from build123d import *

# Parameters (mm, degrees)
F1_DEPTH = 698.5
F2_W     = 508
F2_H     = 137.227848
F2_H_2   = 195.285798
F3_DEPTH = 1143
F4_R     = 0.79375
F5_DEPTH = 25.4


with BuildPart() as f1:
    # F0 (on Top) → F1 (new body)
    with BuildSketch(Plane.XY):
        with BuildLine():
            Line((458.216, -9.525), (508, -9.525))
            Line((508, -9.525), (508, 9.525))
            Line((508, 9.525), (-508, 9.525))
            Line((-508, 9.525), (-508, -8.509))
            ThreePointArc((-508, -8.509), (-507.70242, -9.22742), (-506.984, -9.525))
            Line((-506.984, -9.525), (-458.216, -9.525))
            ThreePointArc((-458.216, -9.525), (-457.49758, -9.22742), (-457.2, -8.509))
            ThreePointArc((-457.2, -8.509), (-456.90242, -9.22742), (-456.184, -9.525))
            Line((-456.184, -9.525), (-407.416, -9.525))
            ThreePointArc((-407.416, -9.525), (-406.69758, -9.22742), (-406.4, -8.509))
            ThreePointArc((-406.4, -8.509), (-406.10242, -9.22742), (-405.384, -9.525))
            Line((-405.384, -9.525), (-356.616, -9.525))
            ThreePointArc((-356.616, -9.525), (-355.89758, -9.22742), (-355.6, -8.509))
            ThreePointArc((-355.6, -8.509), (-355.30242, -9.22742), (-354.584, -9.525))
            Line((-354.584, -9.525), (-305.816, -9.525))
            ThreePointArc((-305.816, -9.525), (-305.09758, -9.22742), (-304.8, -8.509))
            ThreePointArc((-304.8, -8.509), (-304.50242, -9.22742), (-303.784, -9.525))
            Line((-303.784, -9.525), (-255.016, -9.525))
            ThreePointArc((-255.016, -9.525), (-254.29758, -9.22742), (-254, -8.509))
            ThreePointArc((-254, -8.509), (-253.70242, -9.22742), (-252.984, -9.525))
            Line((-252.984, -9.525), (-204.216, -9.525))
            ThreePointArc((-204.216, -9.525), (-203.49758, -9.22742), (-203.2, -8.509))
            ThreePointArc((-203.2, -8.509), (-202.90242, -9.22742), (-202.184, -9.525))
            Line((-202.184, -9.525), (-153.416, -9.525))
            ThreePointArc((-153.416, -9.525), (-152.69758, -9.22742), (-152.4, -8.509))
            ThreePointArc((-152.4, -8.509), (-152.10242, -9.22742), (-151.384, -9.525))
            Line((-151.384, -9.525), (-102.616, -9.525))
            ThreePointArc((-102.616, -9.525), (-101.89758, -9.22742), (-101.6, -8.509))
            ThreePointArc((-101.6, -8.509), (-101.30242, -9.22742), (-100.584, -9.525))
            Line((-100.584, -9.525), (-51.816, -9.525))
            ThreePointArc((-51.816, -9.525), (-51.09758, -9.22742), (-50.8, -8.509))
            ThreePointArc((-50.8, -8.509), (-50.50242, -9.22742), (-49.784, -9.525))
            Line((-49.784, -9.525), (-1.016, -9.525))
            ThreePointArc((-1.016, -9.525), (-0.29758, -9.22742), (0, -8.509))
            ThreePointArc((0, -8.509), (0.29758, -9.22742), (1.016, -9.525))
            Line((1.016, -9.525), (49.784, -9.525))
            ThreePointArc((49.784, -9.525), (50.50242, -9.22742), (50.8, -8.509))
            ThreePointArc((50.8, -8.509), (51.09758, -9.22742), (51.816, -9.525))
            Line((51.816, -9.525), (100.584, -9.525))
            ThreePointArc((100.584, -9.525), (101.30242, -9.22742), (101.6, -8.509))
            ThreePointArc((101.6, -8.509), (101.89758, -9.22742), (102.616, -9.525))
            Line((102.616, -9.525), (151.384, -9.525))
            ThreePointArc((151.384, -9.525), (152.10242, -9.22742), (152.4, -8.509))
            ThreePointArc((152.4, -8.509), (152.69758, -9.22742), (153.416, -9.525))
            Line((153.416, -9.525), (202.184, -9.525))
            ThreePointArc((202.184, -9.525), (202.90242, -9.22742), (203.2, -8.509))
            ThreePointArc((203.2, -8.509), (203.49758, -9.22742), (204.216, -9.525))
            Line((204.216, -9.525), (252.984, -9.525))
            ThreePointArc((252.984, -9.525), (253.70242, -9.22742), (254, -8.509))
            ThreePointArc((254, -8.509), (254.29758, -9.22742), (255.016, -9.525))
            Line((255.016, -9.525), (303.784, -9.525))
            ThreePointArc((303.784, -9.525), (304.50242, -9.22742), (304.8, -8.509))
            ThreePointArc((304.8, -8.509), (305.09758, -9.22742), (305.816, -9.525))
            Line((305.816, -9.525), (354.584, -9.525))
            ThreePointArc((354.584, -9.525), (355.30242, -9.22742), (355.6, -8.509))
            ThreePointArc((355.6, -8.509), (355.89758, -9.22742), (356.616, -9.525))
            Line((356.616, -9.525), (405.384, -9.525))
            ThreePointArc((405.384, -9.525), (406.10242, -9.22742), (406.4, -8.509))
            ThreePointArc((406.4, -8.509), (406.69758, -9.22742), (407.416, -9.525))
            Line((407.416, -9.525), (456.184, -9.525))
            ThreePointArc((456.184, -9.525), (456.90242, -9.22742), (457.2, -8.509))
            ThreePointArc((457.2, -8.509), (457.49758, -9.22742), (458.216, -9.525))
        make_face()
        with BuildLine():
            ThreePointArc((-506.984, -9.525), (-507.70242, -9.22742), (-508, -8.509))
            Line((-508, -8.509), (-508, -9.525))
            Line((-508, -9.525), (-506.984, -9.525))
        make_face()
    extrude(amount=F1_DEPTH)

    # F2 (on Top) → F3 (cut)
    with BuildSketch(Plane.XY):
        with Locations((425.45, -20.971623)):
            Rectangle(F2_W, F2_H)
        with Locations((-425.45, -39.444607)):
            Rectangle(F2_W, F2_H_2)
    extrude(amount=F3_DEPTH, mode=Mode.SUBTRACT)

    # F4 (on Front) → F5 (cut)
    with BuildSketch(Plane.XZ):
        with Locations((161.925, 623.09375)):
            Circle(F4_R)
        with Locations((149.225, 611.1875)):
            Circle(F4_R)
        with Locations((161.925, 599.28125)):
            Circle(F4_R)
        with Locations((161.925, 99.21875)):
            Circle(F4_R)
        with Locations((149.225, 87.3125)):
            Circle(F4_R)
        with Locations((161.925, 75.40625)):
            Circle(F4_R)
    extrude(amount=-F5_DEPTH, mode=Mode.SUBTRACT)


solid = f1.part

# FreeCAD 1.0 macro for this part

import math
import FreeCAD as App
import Part
import Sketcher
from FreeCAD import Vector
Q = App.Units.Quantity

doc = App.newDocument("Part")
params = doc.addObject("Spreadsheet::Sheet", "Params")
for row, (alias, value) in enumerate([
    ("sketch1_width", "40 in"),
    ("sketch1_radius", "0.0400001 in"),
    ("sketch1_height", "0.75 in"),
    ("pad1_length", "27.5 in"),
    ("sketch2_width", "20 in"),
    ("pocket1_length", "45 in"),
    ("sketch3_diameter", "0.0625 in"),
    ("pocket2_length", "1 in"),
], start=1):
    params.set(f"A{row}", alias)
    params.set(f"B{row}", "=" + value)
    params.setAlias(f"B{row}", alias)

body = doc.addObject("PartDesign::Body", "Body")

# Sketch on XY plane
sketch1 = body.newObject("Sketcher::SketchObject", "Sketch")
sketch1.AttachmentSupport = (doc.getObject("XY_Plane"), [""])
sketch1.MapMode = "FlatFace"
sketch1.addGeometry(Part.LineSegment(Vector(458.2, -9.5, 0), Vector(508, -9.5, 0)), False)
sketch1.addGeometry(Part.LineSegment(Vector(508, -9.5, 0), Vector(508, 9.5, 0)), False)
sketch1.addGeometry(Part.LineSegment(Vector(508, 9.5, 0), Vector(-508, 9.5, 0)), False)
sketch1.addGeometry(Part.LineSegment(Vector(-508, 9.5, 0), Vector(-508, -9.5, 0)), False)
sketch1.addGeometry(Part.LineSegment(Vector(-508, -9.5, 0), Vector(-458.2, -9.5, 0)), False)
sketch1.addGeometry(Part.ArcOfCircle(Part.Circle(Vector(-458.2, -8.5, 0), Vector(0, 0, 1), 1), math.radians(-90), math.radians(0)), False)
sketch1.addGeometry(Part.ArcOfCircle(Part.Circle(Vector(-456.2, -8.5, 0), Vector(0, 0, 1), 1), math.radians(-180), math.radians(-90)), False)
sketch1.addGeometry(Part.LineSegment(Vector(-456.2, -9.5, 0), Vector(-407.4, -9.5, 0)), False)
sketch1.addGeometry(Part.ArcOfCircle(Part.Circle(Vector(-407.4, -8.5, 0), Vector(0, 0, 1), 1), math.radians(-90), math.radians(0)), False)
sketch1.addGeometry(Part.ArcOfCircle(Part.Circle(Vector(-405.4, -8.5, 0), Vector(0, 0, 1), 1), math.radians(-180), math.radians(-90)), False)
sketch1.addGeometry(Part.LineSegment(Vector(-405.4, -9.5, 0), Vector(-356.6, -9.5, 0)), False)
sketch1.addGeometry(Part.ArcOfCircle(Part.Circle(Vector(-356.6, -8.5, 0), Vector(0, 0, 1), 1), math.radians(-90), math.radians(0)), False)
sketch1.addGeometry(Part.ArcOfCircle(Part.Circle(Vector(-354.6, -8.5, 0), Vector(0, 0, 1), 1), math.radians(-180), math.radians(-90)), False)
sketch1.addGeometry(Part.LineSegment(Vector(-354.6, -9.5, 0), Vector(-305.8, -9.5, 0)), False)
sketch1.addGeometry(Part.ArcOfCircle(Part.Circle(Vector(-305.8, -8.5, 0), Vector(0, 0, 1), 1), math.radians(-90), math.radians(0)), False)
sketch1.addGeometry(Part.ArcOfCircle(Part.Circle(Vector(-303.8, -8.5, 0), Vector(0, 0, 1), 1), math.radians(-180), math.radians(-90)), False)
sketch1.addGeometry(Part.LineSegment(Vector(-303.8, -9.5, 0), Vector(-255, -9.5, 0)), False)
sketch1.addGeometry(Part.ArcOfCircle(Part.Circle(Vector(-255, -8.5, 0), Vector(0, 0, 1), 1), math.radians(-90), math.radians(0)), False)
sketch1.addGeometry(Part.ArcOfCircle(Part.Circle(Vector(-253, -8.5, 0), Vector(0, 0, 1), 1), math.radians(-180), math.radians(-90)), False)
sketch1.addGeometry(Part.LineSegment(Vector(-253, -9.5, 0), Vector(-204.2, -9.5, 0)), False)
sketch1.addGeometry(Part.ArcOfCircle(Part.Circle(Vector(-204.2, -8.5, 0), Vector(0, 0, 1), 1), math.radians(-90), math.radians(0)), False)
sketch1.addGeometry(Part.ArcOfCircle(Part.Circle(Vector(-202.2, -8.5, 0), Vector(0, 0, 1), 1), math.radians(-180), math.radians(-90)), False)
sketch1.addGeometry(Part.LineSegment(Vector(-202.2, -9.5, 0), Vector(-153.4, -9.5, 0)), False)
sketch1.addGeometry(Part.ArcOfCircle(Part.Circle(Vector(-153.4, -8.5, 0), Vector(0, 0, 1), 1), math.radians(-90), math.radians(0)), False)
sketch1.addGeometry(Part.ArcOfCircle(Part.Circle(Vector(-151.4, -8.5, 0), Vector(0, 0, 1), 1), math.radians(-180), math.radians(-90)), False)
sketch1.addGeometry(Part.LineSegment(Vector(-151.4, -9.5, 0), Vector(-102.6, -9.5, 0)), False)
sketch1.addGeometry(Part.ArcOfCircle(Part.Circle(Vector(-102.6, -8.5, 0), Vector(0, 0, 1), 1), math.radians(-90), math.radians(0)), False)
sketch1.addGeometry(Part.ArcOfCircle(Part.Circle(Vector(-100.6, -8.5, 0), Vector(0, 0, 1), 1), math.radians(-180), math.radians(-90)), False)
sketch1.addGeometry(Part.LineSegment(Vector(-100.6, -9.5, 0), Vector(-51.8, -9.5, 0)), False)
sketch1.addGeometry(Part.ArcOfCircle(Part.Circle(Vector(-51.8, -8.5, 0), Vector(0, 0, 1), 1), math.radians(-90), math.radians(0)), False)
sketch1.addGeometry(Part.ArcOfCircle(Part.Circle(Vector(-49.8, -8.5, 0), Vector(0, 0, 1), 1), math.radians(-180), math.radians(-90)), False)
sketch1.addGeometry(Part.LineSegment(Vector(-49.8, -9.5, 0), Vector(-1, -9.5, 0)), False)
sketch1.addGeometry(Part.ArcOfCircle(Part.Circle(Vector(-1, -8.5, 0), Vector(0, 0, 1), 1), math.radians(-90), math.radians(0)), False)
sketch1.addGeometry(Part.ArcOfCircle(Part.Circle(Vector(1, -8.5, 0), Vector(0, 0, 1), 1), math.radians(-180), math.radians(-90)), False)
sketch1.addGeometry(Part.LineSegment(Vector(1, -9.5, 0), Vector(49.8, -9.5, 0)), False)
sketch1.addGeometry(Part.ArcOfCircle(Part.Circle(Vector(49.8, -8.5, 0), Vector(0, 0, 1), 1), math.radians(-90), math.radians(0)), False)
sketch1.addGeometry(Part.ArcOfCircle(Part.Circle(Vector(51.8, -8.5, 0), Vector(0, 0, 1), 1), math.radians(-180), math.radians(-90)), False)
sketch1.addGeometry(Part.LineSegment(Vector(51.8, -9.5, 0), Vector(100.6, -9.5, 0)), False)
sketch1.addGeometry(Part.ArcOfCircle(Part.Circle(Vector(100.6, -8.5, 0), Vector(0, 0, 1), 1), math.radians(-90), math.radians(0)), False)
sketch1.addGeometry(Part.ArcOfCircle(Part.Circle(Vector(102.6, -8.5, 0), Vector(0, 0, 1), 1), math.radians(-180), math.radians(-90)), False)
sketch1.addGeometry(Part.LineSegment(Vector(102.6, -9.5, 0), Vector(151.4, -9.5, 0)), False)
sketch1.addGeometry(Part.ArcOfCircle(Part.Circle(Vector(151.4, -8.5, 0), Vector(0, 0, 1), 1), math.radians(-90), math.radians(0)), False)
sketch1.addGeometry(Part.ArcOfCircle(Part.Circle(Vector(153.4, -8.5, 0), Vector(0, 0, 1), 1), math.radians(-180), math.radians(-90)), False)
sketch1.addGeometry(Part.LineSegment(Vector(153.4, -9.5, 0), Vector(202.2, -9.5, 0)), False)
sketch1.addGeometry(Part.ArcOfCircle(Part.Circle(Vector(202.2, -8.5, 0), Vector(0, 0, 1), 1), math.radians(-90), math.radians(0)), False)
sketch1.addGeometry(Part.ArcOfCircle(Part.Circle(Vector(204.2, -8.5, 0), Vector(0, 0, 1), 1), math.radians(-180), math.radians(-90)), False)
sketch1.addGeometry(Part.LineSegment(Vector(204.2, -9.5, 0), Vector(253, -9.5, 0)), False)
sketch1.addGeometry(Part.ArcOfCircle(Part.Circle(Vector(253, -8.5, 0), Vector(0, 0, 1), 1), math.radians(-90), math.radians(0)), False)
sketch1.addGeometry(Part.ArcOfCircle(Part.Circle(Vector(255, -8.5, 0), Vector(0, 0, 1), 1), math.radians(-180), math.radians(-90)), False)
sketch1.addGeometry(Part.LineSegment(Vector(255, -9.5, 0), Vector(303.8, -9.5, 0)), False)
sketch1.addGeometry(Part.ArcOfCircle(Part.Circle(Vector(303.8, -8.5, 0), Vector(0, 0, 1), 1), math.radians(-90), math.radians(0)), False)
sketch1.addGeometry(Part.ArcOfCircle(Part.Circle(Vector(305.8, -8.5, 0), Vector(0, 0, 1), 1), math.radians(-180), math.radians(-90)), False)
sketch1.addGeometry(Part.LineSegment(Vector(305.8, -9.5, 0), Vector(354.6, -9.5, 0)), False)
sketch1.addGeometry(Part.ArcOfCircle(Part.Circle(Vector(354.6, -8.5, 0), Vector(0, 0, 1), 1), math.radians(-90), math.radians(0)), False)
sketch1.addGeometry(Part.ArcOfCircle(Part.Circle(Vector(356.6, -8.5, 0), Vector(0, 0, 1), 1), math.radians(-180), math.radians(-90)), False)
sketch1.addGeometry(Part.LineSegment(Vector(356.6, -9.5, 0), Vector(405.4, -9.5, 0)), False)
sketch1.addGeometry(Part.ArcOfCircle(Part.Circle(Vector(405.4, -8.5, 0), Vector(0, 0, 1), 1), math.radians(-90), math.radians(0)), False)
sketch1.addGeometry(Part.ArcOfCircle(Part.Circle(Vector(407.4, -8.5, 0), Vector(0, 0, 1), 1), math.radians(-180), math.radians(-90)), False)
sketch1.addGeometry(Part.LineSegment(Vector(407.4, -9.5, 0), Vector(456.2, -9.5, 0)), False)
sketch1.addGeometry(Part.ArcOfCircle(Part.Circle(Vector(456.2, -8.5, 0), Vector(0, 0, 1), 1), math.radians(-90), math.radians(0)), False)
sketch1.addGeometry(Part.ArcOfCircle(Part.Circle(Vector(458.2, -8.5, 0), Vector(0, 0, 1), 1), math.radians(-180), math.radians(-90)), False)
sketch1.addConstraint(Sketcher.Constraint("Coincident", 0, 2, 1, 1))
sketch1.addConstraint(Sketcher.Constraint("Coincident", 1, 2, 2, 1))
sketch1.addConstraint(Sketcher.Constraint("Coincident", 2, 2, 3, 1))
sketch1.addConstraint(Sketcher.Constraint("Coincident", 3, 2, 4, 1))
sketch1.addConstraint(Sketcher.Constraint("Tangent", 4, 2, 5, 1))
sketch1.addConstraint(Sketcher.Constraint("Coincident", 5, 2, 6, 1))
sketch1.addConstraint(Sketcher.Constraint("Tangent", 6, 2, 7, 1))
sketch1.addConstraint(Sketcher.Constraint("Tangent", 7, 2, 8, 1))
sketch1.addConstraint(Sketcher.Constraint("Coincident", 8, 2, 9, 1))
sketch1.addConstraint(Sketcher.Constraint("Tangent", 9, 2, 10, 1))
sketch1.addConstraint(Sketcher.Constraint("Tangent", 10, 2, 11, 1))
sketch1.addConstraint(Sketcher.Constraint("Coincident", 11, 2, 12, 1))
sketch1.addConstraint(Sketcher.Constraint("Tangent", 12, 2, 13, 1))
sketch1.addConstraint(Sketcher.Constraint("Tangent", 13, 2, 14, 1))
sketch1.addConstraint(Sketcher.Constraint("Coincident", 14, 2, 15, 1))
sketch1.addConstraint(Sketcher.Constraint("Tangent", 15, 2, 16, 1))
sketch1.addConstraint(Sketcher.Constraint("Tangent", 16, 2, 17, 1))
sketch1.addConstraint(Sketcher.Constraint("Coincident", 17, 2, 18, 1))
sketch1.addConstraint(Sketcher.Constraint("Tangent", 18, 2, 19, 1))
sketch1.addConstraint(Sketcher.Constraint("Tangent", 19, 2, 20, 1))
sketch1.addConstraint(Sketcher.Constraint("Coincident", 20, 2, 21, 1))
sketch1.addConstraint(Sketcher.Constraint("Tangent", 21, 2, 22, 1))
sketch1.addConstraint(Sketcher.Constraint("Tangent", 22, 2, 23, 1))
sketch1.addConstraint(Sketcher.Constraint("Coincident", 23, 2, 24, 1))
sketch1.addConstraint(Sketcher.Constraint("Tangent", 24, 2, 25, 1))
sketch1.addConstraint(Sketcher.Constraint("Tangent", 25, 2, 26, 1))
sketch1.addConstraint(Sketcher.Constraint("Coincident", 26, 2, 27, 1))
sketch1.addConstraint(Sketcher.Constraint("Tangent", 27, 2, 28, 1))
sketch1.addConstraint(Sketcher.Constraint("Tangent", 28, 2, 29, 1))
sketch1.addConstraint(Sketcher.Constraint("Coincident", 29, 2, 30, 1))
sketch1.addConstraint(Sketcher.Constraint("Tangent", 30, 2, 31, 1))
sketch1.addConstraint(Sketcher.Constraint("Tangent", 31, 2, 32, 1))
sketch1.addConstraint(Sketcher.Constraint("Coincident", 32, 2, 33, 1))
sketch1.addConstraint(Sketcher.Constraint("Tangent", 33, 2, 34, 1))
sketch1.addConstraint(Sketcher.Constraint("Tangent", 34, 2, 35, 1))
sketch1.addConstraint(Sketcher.Constraint("Coincident", 35, 2, 36, 1))
sketch1.addConstraint(Sketcher.Constraint("Tangent", 36, 2, 37, 1))
sketch1.addConstraint(Sketcher.Constraint("Tangent", 37, 2, 38, 1))
sketch1.addConstraint(Sketcher.Constraint("Coincident", 38, 2, 39, 1))
sketch1.addConstraint(Sketcher.Constraint("Tangent", 39, 2, 40, 1))
sketch1.addConstraint(Sketcher.Constraint("Tangent", 40, 2, 41, 1))
sketch1.addConstraint(Sketcher.Constraint("Coincident", 41, 2, 42, 1))
sketch1.addConstraint(Sketcher.Constraint("Tangent", 42, 2, 43, 1))
sketch1.addConstraint(Sketcher.Constraint("Tangent", 43, 2, 44, 1))
sketch1.addConstraint(Sketcher.Constraint("Coincident", 44, 2, 45, 1))
sketch1.addConstraint(Sketcher.Constraint("Tangent", 45, 2, 46, 1))
sketch1.addConstraint(Sketcher.Constraint("Tangent", 46, 2, 47, 1))
sketch1.addConstraint(Sketcher.Constraint("Coincident", 47, 2, 48, 1))
sketch1.addConstraint(Sketcher.Constraint("Tangent", 48, 2, 49, 1))
sketch1.addConstraint(Sketcher.Constraint("Tangent", 49, 2, 50, 1))
sketch1.addConstraint(Sketcher.Constraint("Coincident", 50, 2, 51, 1))
sketch1.addConstraint(Sketcher.Constraint("Tangent", 51, 2, 52, 1))
sketch1.addConstraint(Sketcher.Constraint("Tangent", 52, 2, 53, 1))
sketch1.addConstraint(Sketcher.Constraint("Coincident", 53, 2, 54, 1))
sketch1.addConstraint(Sketcher.Constraint("Tangent", 54, 2, 55, 1))
sketch1.addConstraint(Sketcher.Constraint("Tangent", 55, 2, 56, 1))
sketch1.addConstraint(Sketcher.Constraint("Coincident", 56, 2, 57, 1))
sketch1.addConstraint(Sketcher.Constraint("Tangent", 57, 2, 58, 1))
sketch1.addConstraint(Sketcher.Constraint("Tangent", 58, 2, 59, 1))
sketch1.addConstraint(Sketcher.Constraint("Coincident", 59, 2, 60, 1))
sketch1.addConstraint(Sketcher.Constraint("Tangent", 60, 2, 0, 1))
sketch1.addConstraint(Sketcher.Constraint("Horizontal", 0))
sketch1.addConstraint(Sketcher.Constraint("Vertical", 1))
sketch1.addConstraint(Sketcher.Constraint("Horizontal", 2))
sketch1.addConstraint(Sketcher.Constraint("Vertical", 3))
sketch1.addConstraint(Sketcher.Constraint("Horizontal", 4))
sketch1.addConstraint(Sketcher.Constraint("Horizontal", 7))
sketch1.addConstraint(Sketcher.Constraint("Horizontal", 10))
sketch1.addConstraint(Sketcher.Constraint("Horizontal", 13))
sketch1.addConstraint(Sketcher.Constraint("Horizontal", 16))
sketch1.addConstraint(Sketcher.Constraint("Horizontal", 19))
sketch1.addConstraint(Sketcher.Constraint("Horizontal", 22))
sketch1.addConstraint(Sketcher.Constraint("Horizontal", 25))
sketch1.addConstraint(Sketcher.Constraint("Horizontal", 28))
sketch1.addConstraint(Sketcher.Constraint("Horizontal", 31))
sketch1.addConstraint(Sketcher.Constraint("Horizontal", 34))
sketch1.addConstraint(Sketcher.Constraint("Horizontal", 37))
sketch1.addConstraint(Sketcher.Constraint("Horizontal", 40))
sketch1.addConstraint(Sketcher.Constraint("Horizontal", 43))
sketch1.addConstraint(Sketcher.Constraint("Horizontal", 46))
sketch1.addConstraint(Sketcher.Constraint("Horizontal", 49))
sketch1.addConstraint(Sketcher.Constraint("Horizontal", 52))
sketch1.addConstraint(Sketcher.Constraint("Horizontal", 55))
sketch1.addConstraint(Sketcher.Constraint("Horizontal", 58))
sketch1.addConstraint(Sketcher.Constraint("Equal", 5, 6))
sketch1.addConstraint(Sketcher.Constraint("Equal", 6, 8))
sketch1.addConstraint(Sketcher.Constraint("Equal", 8, 9))
sketch1.addConstraint(Sketcher.Constraint("Equal", 9, 11))
sketch1.addConstraint(Sketcher.Constraint("Equal", 11, 12))
sketch1.addConstraint(Sketcher.Constraint("Equal", 12, 14))
sketch1.addConstraint(Sketcher.Constraint("Equal", 14, 15))
sketch1.addConstraint(Sketcher.Constraint("Equal", 15, 17))
sketch1.addConstraint(Sketcher.Constraint("Equal", 17, 18))
sketch1.addConstraint(Sketcher.Constraint("Equal", 18, 20))
sketch1.addConstraint(Sketcher.Constraint("Equal", 20, 21))
sketch1.addConstraint(Sketcher.Constraint("Equal", 21, 23))
sketch1.addConstraint(Sketcher.Constraint("Equal", 23, 24))
sketch1.addConstraint(Sketcher.Constraint("Equal", 24, 26))
sketch1.addConstraint(Sketcher.Constraint("Equal", 26, 27))
sketch1.addConstraint(Sketcher.Constraint("Equal", 27, 29))
sketch1.addConstraint(Sketcher.Constraint("Equal", 29, 30))
sketch1.addConstraint(Sketcher.Constraint("Equal", 30, 32))
sketch1.addConstraint(Sketcher.Constraint("Equal", 32, 33))
sketch1.addConstraint(Sketcher.Constraint("Equal", 33, 35))
sketch1.addConstraint(Sketcher.Constraint("Equal", 35, 36))
sketch1.addConstraint(Sketcher.Constraint("Equal", 36, 38))
sketch1.addConstraint(Sketcher.Constraint("Equal", 38, 39))
sketch1.addConstraint(Sketcher.Constraint("Equal", 39, 41))
sketch1.addConstraint(Sketcher.Constraint("Equal", 41, 42))
sketch1.addConstraint(Sketcher.Constraint("Equal", 42, 44))
sketch1.addConstraint(Sketcher.Constraint("Equal", 44, 45))
sketch1.addConstraint(Sketcher.Constraint("Equal", 45, 47))
sketch1.addConstraint(Sketcher.Constraint("Equal", 47, 48))
sketch1.addConstraint(Sketcher.Constraint("Equal", 48, 50))
sketch1.addConstraint(Sketcher.Constraint("Equal", 50, 51))
sketch1.addConstraint(Sketcher.Constraint("Equal", 51, 53))
sketch1.addConstraint(Sketcher.Constraint("Equal", 53, 54))
sketch1.addConstraint(Sketcher.Constraint("Equal", 54, 56))
sketch1.addConstraint(Sketcher.Constraint("Equal", 56, 57))
sketch1.addConstraint(Sketcher.Constraint("Equal", 57, 59))
sketch1.addConstraint(Sketcher.Constraint("Equal", 59, 60))
sketch1.addConstraint(Sketcher.Constraint("Symmetric", 0, 2, 2, 2, -1, 1))
sketch1.addConstraint(Sketcher.Constraint("Symmetric", 32, 3, 33, 3, -2))
sketch1.addConstraint(Sketcher.Constraint("Symmetric", 29, 3, 36, 3, -2))
sketch1.addConstraint(Sketcher.Constraint("Symmetric", 26, 3, 39, 3, -2))
sketch1.addConstraint(Sketcher.Constraint("Symmetric", 23, 3, 42, 3, -2))
sketch1.addConstraint(Sketcher.Constraint("Symmetric", 20, 3, 45, 3, -2))
sketch1.addConstraint(Sketcher.Constraint("Symmetric", 17, 3, 48, 3, -2))
sketch1.addConstraint(Sketcher.Constraint("Symmetric", 14, 3, 51, 3, -2))
sketch1.addConstraint(Sketcher.Constraint("Symmetric", 11, 3, 54, 3, -2))
sketch1.addConstraint(Sketcher.Constraint("Symmetric", 8, 3, 57, 3, -2))
sketch1.addConstraint(Sketcher.Constraint("Symmetric", 5, 3, 60, 3, -2))
sketch1.addConstraint(Sketcher.Constraint("Horizontal", 5, 3, 6, 3))
sketch1.addConstraint(Sketcher.Constraint("Horizontal", 8, 3, 9, 3))
sketch1.addConstraint(Sketcher.Constraint("Horizontal", 11, 3, 12, 3))
sketch1.addConstraint(Sketcher.Constraint("Horizontal", 14, 3, 15, 3))
sketch1.addConstraint(Sketcher.Constraint("Horizontal", 17, 3, 18, 3))
sketch1.addConstraint(Sketcher.Constraint("Horizontal", 20, 3, 21, 3))
sketch1.addConstraint(Sketcher.Constraint("Horizontal", 23, 3, 24, 3))
sketch1.addConstraint(Sketcher.Constraint("Horizontal", 26, 3, 27, 3))
sketch1.addConstraint(Sketcher.Constraint("Horizontal", 29, 3, 30, 3))
sketch1.addConstraint(Sketcher.Constraint("Horizontal", 60, 3, 5, 2))
sketch1.addConstraint(Sketcher.Constraint("Horizontal", 5, 2, 8, 2))
sketch1.addConstraint(Sketcher.Constraint("Horizontal", 8, 2, 11, 2))
sketch1.addConstraint(Sketcher.Constraint("Horizontal", 11, 2, 14, 2))
sketch1.addConstraint(Sketcher.Constraint("Horizontal", 14, 2, 17, 2))
sketch1.addConstraint(Sketcher.Constraint("Horizontal", 17, 2, 20, 2))
sketch1.addConstraint(Sketcher.Constraint("Horizontal", 20, 2, 23, 2))
sketch1.addConstraint(Sketcher.Constraint("Horizontal", 23, 2, 26, 2))
sketch1.addConstraint(Sketcher.Constraint("Horizontal", 26, 2, 29, 2))
sketch1.addConstraint(Sketcher.Constraint("Horizontal", 29, 2, 32, 2))
sketch1.addConstraint(Sketcher.Constraint("Horizontal", 32, 2, 35, 2))
sketch1.addConstraint(Sketcher.Constraint("Horizontal", 35, 2, 38, 2))
sketch1.addConstraint(Sketcher.Constraint("Horizontal", 38, 2, 41, 2))
sketch1.addConstraint(Sketcher.Constraint("Horizontal", 41, 2, 44, 2))
sketch1.addConstraint(Sketcher.Constraint("Horizontal", 44, 2, 47, 2))
sketch1.addConstraint(Sketcher.Constraint("Horizontal", 47, 2, 50, 2))
sketch1.addConstraint(Sketcher.Constraint("Horizontal", 50, 2, 53, 2))
sketch1.addConstraint(Sketcher.Constraint("Horizontal", 53, 2, 56, 2))
sketch1.addConstraint(Sketcher.Constraint("Horizontal", 56, 2, 59, 2))
sketch1.addConstraint(Sketcher.Constraint("Equal", 7, 10))
sketch1.addConstraint(Sketcher.Constraint("Equal", 10, 13))
sketch1.addConstraint(Sketcher.Constraint("Equal", 13, 16))
sketch1.addConstraint(Sketcher.Constraint("Equal", 16, 19))
sketch1.addConstraint(Sketcher.Constraint("Equal", 19, 22))
sketch1.addConstraint(Sketcher.Constraint("Equal", 22, 25))
sketch1.addConstraint(Sketcher.Constraint("Equal", 25, 28))
sketch1.addConstraint(Sketcher.Constraint("Equal", 28, 31))
sketch1.addConstraint(Sketcher.Constraint("DistanceX", 2, 2, 2, 1, Q("40 in")))
sketch1.addConstraint(Sketcher.Constraint("Radius", 5, Q("0.0400001 in")))
sketch1.addConstraint(Sketcher.Constraint("DistanceX", 5, 2, -1, 1, Q("18 in")))
sketch1.addConstraint(Sketcher.Constraint("DistanceY", 1, 1, 1, 2, Q("0.75 in")))
sketch1.setExpression("Constraints[168]", "Params.sketch1_width")
sketch1.setExpression("Constraints[169]", "Params.sketch1_radius")
sketch1.setExpression("Constraints[171]", "Params.sketch1_height")
pad1 = body.newObject("PartDesign::Pad", "Pad")
pad1.Profile = sketch1
pad1.setExpression("Length", "Params.pad1_length")

# Sketch on XY plane
sketch2 = body.newObject("Sketcher::SketchObject", "Sketch001")
sketch2.AttachmentSupport = (doc.getObject("XY_Plane"), [""])
sketch2.MapMode = "FlatFace"
sketch2.addGeometry(Part.LineSegment(Vector(171, 48, 0), Vector(171, -90, 0)), False)
sketch2.addGeometry(Part.LineSegment(Vector(171, -90, 0), Vector(679, -90, 0)), False)
sketch2.addGeometry(Part.LineSegment(Vector(679, -90, 0), Vector(679, 48, 0)), False)
sketch2.addGeometry(Part.LineSegment(Vector(679, 48, 0), Vector(171, 48, 0)), False)
sketch2.addGeometry(Part.LineSegment(Vector(-679, 58, 0), Vector(-679, -137, 0)), False)
sketch2.addGeometry(Part.LineSegment(Vector(-679, -137, 0), Vector(-171, -137, 0)), False)
sketch2.addGeometry(Part.LineSegment(Vector(-171, -137, 0), Vector(-171, 58, 0)), False)
sketch2.addGeometry(Part.LineSegment(Vector(-171, 58, 0), Vector(-679, 58, 0)), False)
sketch2.addConstraint(Sketcher.Constraint("Coincident", 0, 2, 1, 1))
sketch2.addConstraint(Sketcher.Constraint("Coincident", 1, 2, 2, 1))
sketch2.addConstraint(Sketcher.Constraint("Coincident", 2, 2, 3, 1))
sketch2.addConstraint(Sketcher.Constraint("Coincident", 3, 2, 0, 1))
sketch2.addConstraint(Sketcher.Constraint("Coincident", 4, 2, 5, 1))
sketch2.addConstraint(Sketcher.Constraint("Coincident", 5, 2, 6, 1))
sketch2.addConstraint(Sketcher.Constraint("Coincident", 6, 2, 7, 1))
sketch2.addConstraint(Sketcher.Constraint("Coincident", 7, 2, 4, 1))
sketch2.addConstraint(Sketcher.Constraint("Vertical", 0))
sketch2.addConstraint(Sketcher.Constraint("Horizontal", 1))
sketch2.addConstraint(Sketcher.Constraint("Vertical", 2))
sketch2.addConstraint(Sketcher.Constraint("Horizontal", 3))
sketch2.addConstraint(Sketcher.Constraint("Vertical", 4))
sketch2.addConstraint(Sketcher.Constraint("Horizontal", 5))
sketch2.addConstraint(Sketcher.Constraint("Vertical", 6))
sketch2.addConstraint(Sketcher.Constraint("Horizontal", 7))
sketch2.addConstraint(Sketcher.Constraint("Equal", 3, 5))
sketch2.addConstraint(Sketcher.Constraint("DistanceX", 1, 1, 1, 2, Q("20 in")))
sketch2.addConstraint(Sketcher.Constraint("DistanceX", 4, 2, 0, 2, Q("33.5 in")))
sketch2.addConstraint(Sketcher.Constraint("DistanceX", -1, 1, 0, 2, Q("6.75 in")))
sketch2.addConstraint(Sketcher.Constraint("DistanceY", 4, 2, 4, 1, 195.285798))
sketch2.addConstraint(Sketcher.Constraint("DistanceY", 0, 2, 0, 1, 137.227848))
sketch2.addConstraint(Sketcher.Constraint("DistanceY", -1, 1, 2, 2, 47.642301))
sketch2.addConstraint(Sketcher.Constraint("DistanceY", 4, 2, 0, 2, 47.501959))
sketch2.setExpression("Constraints[17]", "Params.sketch2_width")
pocket1 = body.newObject("PartDesign::Pocket", "Pocket")
pocket1.Profile = sketch2
pocket1.setExpression("Length", "Params.pocket1_length")
pocket1.Reversed = True

# Sketch on XZ plane
sketch3 = body.newObject("Sketcher::SketchObject", "Sketch002")
sketch3.AttachmentSupport = (doc.getObject("XZ_Plane"), [""])
sketch3.MapMode = "FlatFace"
sketch3.addGeometry(Part.Circle(Vector(161.9, 623.1, 0), Vector(0, 0, 1), 0.8), False)
sketch3.addGeometry(Part.Circle(Vector(149.2, 611.2, 0), Vector(0, 0, 1), 0.8), False)
sketch3.addGeometry(Part.Circle(Vector(161.9, 599.3, 0), Vector(0, 0, 1), 0.8), False)
sketch3.addGeometry(Part.Circle(Vector(161.9, 99.2, 0), Vector(0, 0, 1), 0.8), False)
sketch3.addGeometry(Part.Circle(Vector(149.2, 87.3, 0), Vector(0, 0, 1), 0.8), False)
sketch3.addGeometry(Part.Circle(Vector(161.9, 75.4, 0), Vector(0, 0, 1), 0.8), False)
sketch3.addConstraint(Sketcher.Constraint("Equal", 0, 1))
sketch3.addConstraint(Sketcher.Constraint("Equal", 1, 2))
sketch3.addConstraint(Sketcher.Constraint("Equal", 2, 3))
sketch3.addConstraint(Sketcher.Constraint("Equal", 3, 4))
sketch3.addConstraint(Sketcher.Constraint("Equal", 4, 5))
sketch3.addConstraint(Sketcher.Constraint("Vertical", 0, 3, 2, 3))
sketch3.addConstraint(Sketcher.Constraint("Vertical", 2, 3, 3, 3))
sketch3.addConstraint(Sketcher.Constraint("Vertical", 1, 3, 4, 3))
sketch3.addConstraint(Sketcher.Constraint("Vertical", 3, 3, 5, 3))
sketch3.addConstraint(Sketcher.Constraint("Diameter", 0, Q("0.0625 in")))
sketch3.addConstraint(Sketcher.Constraint("DistanceX", 1, 3, 0, 3, Q("0.5 in")))
sketch3.addConstraint(Sketcher.Constraint("DistanceX", -1, 1, 0, 3, Q("6.375 in")))
sketch3.addConstraint(Sketcher.Constraint("DistanceY", -1, 1, 0, 3, Q("24.53125 in")))
sketch3.addConstraint(Sketcher.Constraint("DistanceY", -1, 1, 1, 3, Q("24.0625 in")))
sketch3.addConstraint(Sketcher.Constraint("DistanceY", -1, 1, 2, 3, Q("23.59375 in")))
sketch3.addConstraint(Sketcher.Constraint("DistanceY", -1, 1, 3, 3, Q("3.90625 in")))
sketch3.addConstraint(Sketcher.Constraint("DistanceY", -1, 1, 4, 3, Q("3.4375 in")))
sketch3.addConstraint(Sketcher.Constraint("DistanceY", -1, 1, 5, 3, Q("2.96875 in")))
sketch3.setExpression("Constraints[9]", "Params.sketch3_diameter")
pocket2 = body.newObject("PartDesign::Pocket", "Pocket001")
pocket2.Profile = sketch3
pocket2.setExpression("Length", "Params.pocket2_length")

doc.recompute()
